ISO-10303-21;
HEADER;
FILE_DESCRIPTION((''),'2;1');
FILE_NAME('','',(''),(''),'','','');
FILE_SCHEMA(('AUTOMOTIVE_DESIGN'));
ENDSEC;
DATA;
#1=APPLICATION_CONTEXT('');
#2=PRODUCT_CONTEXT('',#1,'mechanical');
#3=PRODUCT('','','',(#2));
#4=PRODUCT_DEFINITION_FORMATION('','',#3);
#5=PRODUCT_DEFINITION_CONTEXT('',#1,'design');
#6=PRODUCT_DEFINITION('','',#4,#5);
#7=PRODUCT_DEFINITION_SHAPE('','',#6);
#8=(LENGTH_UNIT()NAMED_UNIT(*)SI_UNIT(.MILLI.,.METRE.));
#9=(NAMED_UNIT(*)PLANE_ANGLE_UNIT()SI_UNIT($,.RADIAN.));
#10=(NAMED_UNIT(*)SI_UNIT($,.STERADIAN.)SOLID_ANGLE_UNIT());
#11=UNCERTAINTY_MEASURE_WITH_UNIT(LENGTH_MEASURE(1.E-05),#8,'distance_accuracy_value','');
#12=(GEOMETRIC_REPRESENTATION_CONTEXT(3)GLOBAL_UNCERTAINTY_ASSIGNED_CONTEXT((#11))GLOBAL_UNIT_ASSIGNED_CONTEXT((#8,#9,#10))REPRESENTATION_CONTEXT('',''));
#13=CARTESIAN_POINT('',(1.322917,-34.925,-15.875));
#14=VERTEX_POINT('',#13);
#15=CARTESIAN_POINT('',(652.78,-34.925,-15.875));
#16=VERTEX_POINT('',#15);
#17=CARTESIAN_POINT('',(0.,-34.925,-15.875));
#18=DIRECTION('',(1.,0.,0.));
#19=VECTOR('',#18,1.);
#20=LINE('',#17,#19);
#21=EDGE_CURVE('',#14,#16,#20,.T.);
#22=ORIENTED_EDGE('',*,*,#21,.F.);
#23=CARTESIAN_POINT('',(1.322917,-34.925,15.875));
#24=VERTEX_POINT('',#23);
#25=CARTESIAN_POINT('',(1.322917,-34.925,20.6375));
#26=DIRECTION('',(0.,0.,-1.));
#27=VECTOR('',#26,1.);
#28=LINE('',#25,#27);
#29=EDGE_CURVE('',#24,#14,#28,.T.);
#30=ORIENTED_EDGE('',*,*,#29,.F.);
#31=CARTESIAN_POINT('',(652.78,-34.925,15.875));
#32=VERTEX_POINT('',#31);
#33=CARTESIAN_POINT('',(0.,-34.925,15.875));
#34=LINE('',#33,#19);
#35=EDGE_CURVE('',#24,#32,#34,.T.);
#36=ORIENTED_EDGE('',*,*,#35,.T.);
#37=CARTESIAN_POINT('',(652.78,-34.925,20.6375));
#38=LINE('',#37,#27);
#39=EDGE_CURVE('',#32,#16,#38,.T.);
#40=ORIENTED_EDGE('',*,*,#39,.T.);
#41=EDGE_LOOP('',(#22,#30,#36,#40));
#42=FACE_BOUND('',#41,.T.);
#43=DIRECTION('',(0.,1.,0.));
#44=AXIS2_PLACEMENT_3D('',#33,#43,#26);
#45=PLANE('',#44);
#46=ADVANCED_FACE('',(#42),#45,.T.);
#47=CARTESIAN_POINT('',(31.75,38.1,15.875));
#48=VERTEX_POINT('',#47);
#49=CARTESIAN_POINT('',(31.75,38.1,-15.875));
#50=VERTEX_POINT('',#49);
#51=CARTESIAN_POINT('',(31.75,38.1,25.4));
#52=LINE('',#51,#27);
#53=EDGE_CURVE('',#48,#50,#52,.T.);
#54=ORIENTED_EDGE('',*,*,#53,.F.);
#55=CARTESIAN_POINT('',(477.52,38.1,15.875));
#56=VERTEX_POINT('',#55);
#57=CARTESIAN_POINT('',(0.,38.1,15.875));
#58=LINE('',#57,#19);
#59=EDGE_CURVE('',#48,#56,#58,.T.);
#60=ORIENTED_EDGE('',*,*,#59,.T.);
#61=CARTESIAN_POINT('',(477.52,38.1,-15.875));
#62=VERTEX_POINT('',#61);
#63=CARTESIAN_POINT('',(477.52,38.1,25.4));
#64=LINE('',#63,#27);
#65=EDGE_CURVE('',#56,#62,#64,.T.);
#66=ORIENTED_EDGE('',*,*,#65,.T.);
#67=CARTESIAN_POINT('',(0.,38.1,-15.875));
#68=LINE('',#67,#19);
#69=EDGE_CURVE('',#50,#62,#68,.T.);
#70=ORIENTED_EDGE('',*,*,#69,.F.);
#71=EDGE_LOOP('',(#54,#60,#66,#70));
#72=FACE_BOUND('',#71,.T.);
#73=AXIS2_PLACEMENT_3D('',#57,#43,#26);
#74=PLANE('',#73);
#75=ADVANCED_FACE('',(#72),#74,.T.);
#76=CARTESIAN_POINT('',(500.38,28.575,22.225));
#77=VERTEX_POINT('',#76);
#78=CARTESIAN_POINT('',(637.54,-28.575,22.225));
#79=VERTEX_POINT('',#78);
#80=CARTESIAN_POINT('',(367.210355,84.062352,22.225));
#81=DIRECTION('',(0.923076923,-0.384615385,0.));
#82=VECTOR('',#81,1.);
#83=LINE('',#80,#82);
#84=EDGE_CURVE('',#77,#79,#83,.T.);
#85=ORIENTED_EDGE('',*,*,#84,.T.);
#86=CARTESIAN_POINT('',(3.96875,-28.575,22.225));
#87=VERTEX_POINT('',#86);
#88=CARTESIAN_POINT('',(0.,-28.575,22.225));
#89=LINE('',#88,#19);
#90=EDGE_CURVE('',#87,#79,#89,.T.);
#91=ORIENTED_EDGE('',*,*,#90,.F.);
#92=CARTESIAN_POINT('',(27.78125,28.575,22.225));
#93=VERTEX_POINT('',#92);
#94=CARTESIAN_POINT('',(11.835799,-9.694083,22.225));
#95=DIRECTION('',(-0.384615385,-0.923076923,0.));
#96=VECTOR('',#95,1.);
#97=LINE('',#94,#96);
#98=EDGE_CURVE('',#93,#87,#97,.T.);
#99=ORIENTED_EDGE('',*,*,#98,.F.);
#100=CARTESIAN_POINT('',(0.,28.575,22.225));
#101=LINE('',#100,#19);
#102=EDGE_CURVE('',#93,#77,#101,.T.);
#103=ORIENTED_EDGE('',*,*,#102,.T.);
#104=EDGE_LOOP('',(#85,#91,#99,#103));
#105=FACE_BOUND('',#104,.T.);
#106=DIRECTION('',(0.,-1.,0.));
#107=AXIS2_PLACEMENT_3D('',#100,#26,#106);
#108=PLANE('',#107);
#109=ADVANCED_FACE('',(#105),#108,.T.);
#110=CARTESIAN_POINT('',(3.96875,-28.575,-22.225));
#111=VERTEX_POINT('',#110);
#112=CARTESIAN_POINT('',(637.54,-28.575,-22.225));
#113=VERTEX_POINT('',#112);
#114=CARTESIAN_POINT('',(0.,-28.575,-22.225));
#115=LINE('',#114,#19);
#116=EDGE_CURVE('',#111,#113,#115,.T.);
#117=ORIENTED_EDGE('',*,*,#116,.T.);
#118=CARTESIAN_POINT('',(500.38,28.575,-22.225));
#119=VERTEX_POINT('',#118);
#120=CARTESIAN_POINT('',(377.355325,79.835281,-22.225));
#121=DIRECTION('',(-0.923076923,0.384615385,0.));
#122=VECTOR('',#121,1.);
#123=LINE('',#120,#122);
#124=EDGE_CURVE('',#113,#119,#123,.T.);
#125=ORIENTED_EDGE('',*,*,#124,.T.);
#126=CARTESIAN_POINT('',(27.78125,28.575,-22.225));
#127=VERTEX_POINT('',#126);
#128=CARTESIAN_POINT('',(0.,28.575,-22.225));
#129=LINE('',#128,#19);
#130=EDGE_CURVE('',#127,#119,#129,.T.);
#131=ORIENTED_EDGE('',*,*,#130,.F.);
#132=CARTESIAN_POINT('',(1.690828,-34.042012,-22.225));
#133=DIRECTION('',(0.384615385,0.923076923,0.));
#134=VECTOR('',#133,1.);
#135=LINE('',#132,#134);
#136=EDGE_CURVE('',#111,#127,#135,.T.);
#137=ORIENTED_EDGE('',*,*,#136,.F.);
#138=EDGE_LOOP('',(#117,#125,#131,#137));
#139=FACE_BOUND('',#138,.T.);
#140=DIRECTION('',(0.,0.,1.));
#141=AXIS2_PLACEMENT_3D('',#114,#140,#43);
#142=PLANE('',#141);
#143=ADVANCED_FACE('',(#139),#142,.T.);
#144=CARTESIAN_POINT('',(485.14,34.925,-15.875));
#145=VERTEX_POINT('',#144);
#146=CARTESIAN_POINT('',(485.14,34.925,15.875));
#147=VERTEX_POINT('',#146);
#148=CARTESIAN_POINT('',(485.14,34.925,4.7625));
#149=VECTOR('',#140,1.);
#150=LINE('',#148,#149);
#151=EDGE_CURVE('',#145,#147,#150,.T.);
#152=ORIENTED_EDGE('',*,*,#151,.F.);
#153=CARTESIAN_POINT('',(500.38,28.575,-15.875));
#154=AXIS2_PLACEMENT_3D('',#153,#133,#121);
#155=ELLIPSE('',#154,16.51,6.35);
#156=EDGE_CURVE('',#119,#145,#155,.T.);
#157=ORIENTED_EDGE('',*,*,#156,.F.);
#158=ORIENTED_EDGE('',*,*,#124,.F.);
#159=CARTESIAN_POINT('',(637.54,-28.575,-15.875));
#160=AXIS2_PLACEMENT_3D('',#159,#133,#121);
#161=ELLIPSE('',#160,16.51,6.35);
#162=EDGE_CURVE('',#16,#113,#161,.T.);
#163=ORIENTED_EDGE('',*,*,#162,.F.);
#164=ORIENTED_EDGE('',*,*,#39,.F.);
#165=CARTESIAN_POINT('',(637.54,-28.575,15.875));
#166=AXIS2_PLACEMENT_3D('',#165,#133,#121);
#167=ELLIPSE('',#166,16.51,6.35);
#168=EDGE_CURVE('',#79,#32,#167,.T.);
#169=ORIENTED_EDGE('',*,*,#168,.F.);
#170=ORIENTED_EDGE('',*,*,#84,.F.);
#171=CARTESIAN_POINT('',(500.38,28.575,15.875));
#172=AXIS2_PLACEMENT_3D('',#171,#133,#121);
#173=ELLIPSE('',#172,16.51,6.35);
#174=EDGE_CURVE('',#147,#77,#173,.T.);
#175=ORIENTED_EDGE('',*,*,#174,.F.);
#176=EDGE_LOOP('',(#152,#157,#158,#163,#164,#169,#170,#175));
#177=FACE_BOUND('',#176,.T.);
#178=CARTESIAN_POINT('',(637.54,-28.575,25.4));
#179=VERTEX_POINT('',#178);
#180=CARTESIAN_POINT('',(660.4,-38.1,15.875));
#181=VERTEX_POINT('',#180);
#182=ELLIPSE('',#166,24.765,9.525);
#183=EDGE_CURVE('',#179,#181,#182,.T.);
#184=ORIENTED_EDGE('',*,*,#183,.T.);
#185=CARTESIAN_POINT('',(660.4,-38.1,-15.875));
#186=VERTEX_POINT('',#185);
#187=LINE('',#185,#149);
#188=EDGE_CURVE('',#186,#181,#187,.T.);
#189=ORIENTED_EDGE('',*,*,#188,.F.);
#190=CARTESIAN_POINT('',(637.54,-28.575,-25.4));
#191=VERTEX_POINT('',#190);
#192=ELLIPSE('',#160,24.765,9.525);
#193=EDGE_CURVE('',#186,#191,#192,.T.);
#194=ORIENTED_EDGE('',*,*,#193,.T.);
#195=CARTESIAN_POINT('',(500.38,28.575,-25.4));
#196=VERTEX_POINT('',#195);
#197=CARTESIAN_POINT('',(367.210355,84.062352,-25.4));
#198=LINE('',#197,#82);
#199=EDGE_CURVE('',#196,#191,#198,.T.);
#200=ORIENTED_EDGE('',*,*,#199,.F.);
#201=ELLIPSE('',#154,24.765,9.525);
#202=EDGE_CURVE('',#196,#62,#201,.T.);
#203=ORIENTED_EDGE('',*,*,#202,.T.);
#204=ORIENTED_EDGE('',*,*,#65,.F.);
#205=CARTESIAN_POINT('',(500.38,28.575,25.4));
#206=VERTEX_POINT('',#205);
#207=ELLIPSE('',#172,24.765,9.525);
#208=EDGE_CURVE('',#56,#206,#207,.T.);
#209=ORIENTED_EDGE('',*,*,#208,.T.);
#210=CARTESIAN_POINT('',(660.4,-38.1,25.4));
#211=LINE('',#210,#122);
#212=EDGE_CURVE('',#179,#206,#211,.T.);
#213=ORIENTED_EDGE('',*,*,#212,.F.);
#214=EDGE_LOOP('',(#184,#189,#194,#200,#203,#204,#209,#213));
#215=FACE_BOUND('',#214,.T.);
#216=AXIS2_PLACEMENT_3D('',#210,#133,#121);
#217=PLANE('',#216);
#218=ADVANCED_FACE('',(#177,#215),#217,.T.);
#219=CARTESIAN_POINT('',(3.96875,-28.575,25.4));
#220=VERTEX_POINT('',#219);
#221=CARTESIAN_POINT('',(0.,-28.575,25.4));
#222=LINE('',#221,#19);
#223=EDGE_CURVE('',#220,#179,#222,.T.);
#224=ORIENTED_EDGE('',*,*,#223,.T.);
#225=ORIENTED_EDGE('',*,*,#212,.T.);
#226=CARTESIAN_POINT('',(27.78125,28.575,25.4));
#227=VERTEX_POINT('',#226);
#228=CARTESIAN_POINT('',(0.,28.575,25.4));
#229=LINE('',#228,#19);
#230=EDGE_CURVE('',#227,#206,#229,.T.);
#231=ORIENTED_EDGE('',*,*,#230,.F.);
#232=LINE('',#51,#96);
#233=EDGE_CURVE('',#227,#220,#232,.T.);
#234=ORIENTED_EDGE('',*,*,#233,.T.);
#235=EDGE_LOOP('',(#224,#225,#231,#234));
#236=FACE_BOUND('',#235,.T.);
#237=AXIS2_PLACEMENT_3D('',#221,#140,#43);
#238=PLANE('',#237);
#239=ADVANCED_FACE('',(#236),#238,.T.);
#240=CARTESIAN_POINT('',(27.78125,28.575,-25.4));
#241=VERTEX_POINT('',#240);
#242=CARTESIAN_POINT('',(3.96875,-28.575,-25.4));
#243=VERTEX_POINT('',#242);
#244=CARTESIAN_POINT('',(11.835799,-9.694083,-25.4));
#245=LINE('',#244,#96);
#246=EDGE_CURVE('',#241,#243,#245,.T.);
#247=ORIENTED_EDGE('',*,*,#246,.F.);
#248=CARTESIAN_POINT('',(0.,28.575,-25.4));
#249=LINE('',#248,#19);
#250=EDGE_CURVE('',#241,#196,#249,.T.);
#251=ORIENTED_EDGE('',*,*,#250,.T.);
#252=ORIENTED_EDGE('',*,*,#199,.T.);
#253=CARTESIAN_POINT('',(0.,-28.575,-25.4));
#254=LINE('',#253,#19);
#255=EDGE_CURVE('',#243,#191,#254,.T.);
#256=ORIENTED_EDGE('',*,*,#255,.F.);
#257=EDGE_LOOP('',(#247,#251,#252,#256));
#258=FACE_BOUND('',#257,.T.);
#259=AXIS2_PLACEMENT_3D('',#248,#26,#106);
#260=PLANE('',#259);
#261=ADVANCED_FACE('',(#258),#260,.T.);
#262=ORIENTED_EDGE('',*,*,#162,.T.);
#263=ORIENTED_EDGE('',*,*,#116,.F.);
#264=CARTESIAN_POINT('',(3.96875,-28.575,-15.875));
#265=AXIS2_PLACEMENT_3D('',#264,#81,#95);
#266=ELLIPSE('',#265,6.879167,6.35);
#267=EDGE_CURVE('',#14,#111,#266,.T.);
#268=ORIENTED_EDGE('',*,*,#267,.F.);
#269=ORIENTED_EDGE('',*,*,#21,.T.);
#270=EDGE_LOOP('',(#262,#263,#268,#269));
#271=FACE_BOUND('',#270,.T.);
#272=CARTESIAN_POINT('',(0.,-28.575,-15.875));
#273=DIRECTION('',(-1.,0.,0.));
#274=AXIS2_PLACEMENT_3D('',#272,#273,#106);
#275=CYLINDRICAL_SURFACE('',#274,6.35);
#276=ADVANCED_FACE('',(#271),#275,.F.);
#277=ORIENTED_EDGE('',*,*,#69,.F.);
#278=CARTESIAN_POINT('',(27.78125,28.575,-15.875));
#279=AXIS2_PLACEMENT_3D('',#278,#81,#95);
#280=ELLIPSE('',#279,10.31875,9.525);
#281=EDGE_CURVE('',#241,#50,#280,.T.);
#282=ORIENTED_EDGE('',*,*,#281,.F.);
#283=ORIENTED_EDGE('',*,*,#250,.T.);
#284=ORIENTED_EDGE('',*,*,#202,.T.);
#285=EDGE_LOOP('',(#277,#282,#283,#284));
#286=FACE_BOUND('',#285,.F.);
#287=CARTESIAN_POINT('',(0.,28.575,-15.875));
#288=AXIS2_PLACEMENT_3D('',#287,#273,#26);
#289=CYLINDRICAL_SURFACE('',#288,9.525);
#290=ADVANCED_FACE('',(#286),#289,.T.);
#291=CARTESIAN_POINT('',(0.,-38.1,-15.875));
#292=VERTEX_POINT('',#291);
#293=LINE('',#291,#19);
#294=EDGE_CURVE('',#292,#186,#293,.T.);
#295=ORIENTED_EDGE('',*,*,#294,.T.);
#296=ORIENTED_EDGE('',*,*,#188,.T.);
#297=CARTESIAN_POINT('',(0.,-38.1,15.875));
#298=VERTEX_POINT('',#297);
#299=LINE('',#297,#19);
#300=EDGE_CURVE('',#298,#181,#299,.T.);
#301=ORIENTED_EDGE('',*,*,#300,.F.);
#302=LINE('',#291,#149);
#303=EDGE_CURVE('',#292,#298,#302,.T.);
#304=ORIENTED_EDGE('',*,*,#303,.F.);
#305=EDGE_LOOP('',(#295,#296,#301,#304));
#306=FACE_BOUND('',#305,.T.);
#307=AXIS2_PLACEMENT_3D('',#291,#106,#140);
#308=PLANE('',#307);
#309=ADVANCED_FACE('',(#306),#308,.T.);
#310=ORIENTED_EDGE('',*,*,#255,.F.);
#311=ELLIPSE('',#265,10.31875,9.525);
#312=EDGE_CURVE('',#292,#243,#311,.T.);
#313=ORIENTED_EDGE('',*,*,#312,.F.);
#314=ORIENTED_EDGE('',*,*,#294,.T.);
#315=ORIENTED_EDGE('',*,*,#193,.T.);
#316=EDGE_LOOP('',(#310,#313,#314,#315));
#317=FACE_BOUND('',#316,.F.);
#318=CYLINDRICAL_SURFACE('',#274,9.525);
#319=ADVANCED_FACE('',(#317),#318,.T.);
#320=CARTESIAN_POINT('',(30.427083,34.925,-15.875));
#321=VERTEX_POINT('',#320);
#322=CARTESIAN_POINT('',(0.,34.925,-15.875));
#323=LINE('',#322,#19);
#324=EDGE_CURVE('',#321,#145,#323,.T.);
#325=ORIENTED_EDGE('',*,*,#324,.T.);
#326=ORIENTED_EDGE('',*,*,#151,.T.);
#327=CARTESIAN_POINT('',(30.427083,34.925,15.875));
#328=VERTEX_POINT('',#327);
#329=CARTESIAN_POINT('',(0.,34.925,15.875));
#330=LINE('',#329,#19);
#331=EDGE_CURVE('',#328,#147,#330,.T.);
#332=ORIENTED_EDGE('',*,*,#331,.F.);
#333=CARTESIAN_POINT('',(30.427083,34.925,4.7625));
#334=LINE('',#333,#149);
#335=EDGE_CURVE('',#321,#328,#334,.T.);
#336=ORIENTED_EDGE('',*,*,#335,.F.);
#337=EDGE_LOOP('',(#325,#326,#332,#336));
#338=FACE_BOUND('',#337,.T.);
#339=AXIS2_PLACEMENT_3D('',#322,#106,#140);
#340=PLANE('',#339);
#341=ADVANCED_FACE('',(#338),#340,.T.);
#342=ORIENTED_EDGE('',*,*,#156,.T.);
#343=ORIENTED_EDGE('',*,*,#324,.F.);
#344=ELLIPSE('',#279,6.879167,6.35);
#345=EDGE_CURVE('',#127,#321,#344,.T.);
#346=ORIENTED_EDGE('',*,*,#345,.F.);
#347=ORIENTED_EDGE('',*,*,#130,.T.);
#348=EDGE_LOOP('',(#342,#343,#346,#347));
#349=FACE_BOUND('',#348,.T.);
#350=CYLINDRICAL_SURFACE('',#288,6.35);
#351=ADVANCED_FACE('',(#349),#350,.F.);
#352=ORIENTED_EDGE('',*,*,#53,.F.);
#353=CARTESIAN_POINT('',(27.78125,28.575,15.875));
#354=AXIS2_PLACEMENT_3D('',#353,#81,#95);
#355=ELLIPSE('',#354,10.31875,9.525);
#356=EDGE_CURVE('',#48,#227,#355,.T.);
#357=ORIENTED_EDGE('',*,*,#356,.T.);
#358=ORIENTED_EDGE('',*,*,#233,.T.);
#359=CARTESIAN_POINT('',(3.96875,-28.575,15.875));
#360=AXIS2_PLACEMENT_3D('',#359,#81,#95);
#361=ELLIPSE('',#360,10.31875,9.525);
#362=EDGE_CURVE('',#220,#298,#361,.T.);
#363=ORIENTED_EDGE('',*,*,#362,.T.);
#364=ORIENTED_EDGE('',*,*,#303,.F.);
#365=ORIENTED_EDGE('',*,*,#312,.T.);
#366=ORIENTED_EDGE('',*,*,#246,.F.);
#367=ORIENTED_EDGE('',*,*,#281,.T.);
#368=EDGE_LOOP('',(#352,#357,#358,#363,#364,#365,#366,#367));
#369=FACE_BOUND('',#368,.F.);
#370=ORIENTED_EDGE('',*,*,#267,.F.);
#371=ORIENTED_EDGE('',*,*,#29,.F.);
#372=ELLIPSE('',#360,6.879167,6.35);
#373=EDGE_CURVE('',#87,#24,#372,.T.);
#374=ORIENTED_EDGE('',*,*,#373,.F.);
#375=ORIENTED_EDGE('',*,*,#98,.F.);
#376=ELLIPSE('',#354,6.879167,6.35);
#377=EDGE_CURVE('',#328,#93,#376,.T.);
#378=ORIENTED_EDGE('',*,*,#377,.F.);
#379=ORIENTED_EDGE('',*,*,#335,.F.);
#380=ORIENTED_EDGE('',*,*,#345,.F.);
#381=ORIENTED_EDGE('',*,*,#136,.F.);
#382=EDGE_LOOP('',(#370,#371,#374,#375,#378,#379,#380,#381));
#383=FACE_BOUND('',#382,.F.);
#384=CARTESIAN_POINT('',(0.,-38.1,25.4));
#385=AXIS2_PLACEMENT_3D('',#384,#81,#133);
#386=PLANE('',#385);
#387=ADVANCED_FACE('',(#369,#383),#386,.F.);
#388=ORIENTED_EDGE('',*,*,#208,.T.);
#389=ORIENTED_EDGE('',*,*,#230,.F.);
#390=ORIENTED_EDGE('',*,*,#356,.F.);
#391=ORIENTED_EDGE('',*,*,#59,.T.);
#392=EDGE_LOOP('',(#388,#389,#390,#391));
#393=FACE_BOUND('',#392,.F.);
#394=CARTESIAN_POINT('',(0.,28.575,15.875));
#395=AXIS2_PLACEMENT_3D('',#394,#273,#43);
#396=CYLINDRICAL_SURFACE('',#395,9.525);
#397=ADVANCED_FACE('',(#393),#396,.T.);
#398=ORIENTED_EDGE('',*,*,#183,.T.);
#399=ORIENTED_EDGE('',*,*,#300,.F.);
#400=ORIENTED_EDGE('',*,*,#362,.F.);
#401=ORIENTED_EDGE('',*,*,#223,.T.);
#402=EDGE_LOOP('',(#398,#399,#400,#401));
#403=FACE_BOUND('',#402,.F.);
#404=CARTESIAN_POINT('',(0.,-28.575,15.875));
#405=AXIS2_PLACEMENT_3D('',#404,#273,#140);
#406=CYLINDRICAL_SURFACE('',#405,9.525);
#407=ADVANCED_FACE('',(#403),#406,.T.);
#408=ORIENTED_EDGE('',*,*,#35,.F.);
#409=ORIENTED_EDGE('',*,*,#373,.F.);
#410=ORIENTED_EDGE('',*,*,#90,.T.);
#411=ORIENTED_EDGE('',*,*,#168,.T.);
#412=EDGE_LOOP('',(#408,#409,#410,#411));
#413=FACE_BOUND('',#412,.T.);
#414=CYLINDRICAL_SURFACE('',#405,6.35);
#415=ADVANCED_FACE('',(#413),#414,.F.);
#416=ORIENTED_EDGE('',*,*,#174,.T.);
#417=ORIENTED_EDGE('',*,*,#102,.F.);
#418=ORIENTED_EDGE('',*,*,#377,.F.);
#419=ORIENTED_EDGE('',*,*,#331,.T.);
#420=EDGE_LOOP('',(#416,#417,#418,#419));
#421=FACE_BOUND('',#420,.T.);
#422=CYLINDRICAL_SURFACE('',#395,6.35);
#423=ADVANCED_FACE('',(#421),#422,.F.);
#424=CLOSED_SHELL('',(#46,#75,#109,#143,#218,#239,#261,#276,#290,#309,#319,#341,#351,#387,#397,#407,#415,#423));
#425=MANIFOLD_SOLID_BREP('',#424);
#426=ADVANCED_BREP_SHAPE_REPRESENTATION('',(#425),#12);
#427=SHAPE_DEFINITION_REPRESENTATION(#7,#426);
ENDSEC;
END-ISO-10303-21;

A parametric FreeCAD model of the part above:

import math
import FreeCAD as App
import Part
import Sketcher

V = App.Vector
Q = App.Units.Quantity

doc = App.newDocument("Part")
body = doc.addObject("PartDesign::Body", "Body")

# Sketch on YZ plane
sketch1 = body.newObject("Sketcher::SketchObject", "Sketch")
sketch1.AttachmentSupport = (doc.getObject("YZ_Plane"), [""])
sketch1.MapMode = "FlatFace"
sketch1.addGeometry(Part.LineSegment(V(29, 25, 0), V(-29, 25, 0)), False)
sketch1.addGeometry(Part.ArcOfCircle(Part.Circle(V(-29, 16, 0), V(0, 0, 1), 10), math.radians(90), math.radians(180)), False)
sketch1.addGeometry(Part.LineSegment(V(-38, 16, 0), V(-38, -16, 0)), False)
sketch1.addGeometry(Part.ArcOfCircle(Part.Circle(V(-29, -16, 0), V(0, 0, 1), 10), math.radians(180), math.radians(270)), False)
sketch1.addGeometry(Part.LineSegment(V(-29, -25, 0), V(29, -25, 0)), False)
sketch1.addGeometry(Part.ArcOfCircle(Part.Circle(V(29, -16, 0), V(0, 0, 1), 10), math.radians(-90), math.radians(0)), False)
sketch1.addGeometry(Part.LineSegment(V(38, -16, 0), V(38, 16, 0)), False)
sketch1.addGeometry(Part.ArcOfCircle(Part.Circle(V(29, 16, 0), V(0, 0, 1), 10), math.radians(0), math.radians(90)), False)
sketch1.addGeometry(Part.LineSegment(V(35, 16, 0), V(35, -16, 0)), False)
sketch1.addGeometry(Part.ArcOfCircle(Part.Circle(V(29, -16, 0), V(0, 0, 1), 6), math.radians(-90), math.radians(0)), False)
sketch1.addGeometry(Part.LineSegment(V(29, -22, 0), V(-29, -22, 0)), False)
sketch1.addGeometry(Part.ArcOfCircle(Part.Circle(V(-29, -16, 0), V(0, 0, 1), 6), math.radians(180), math.radians(270)), False)
sketch1.addGeometry(Part.LineSegment(V(-35, -16, 0), V(-35, 16, 0)), False)
sketch1.addGeometry(Part.ArcOfCircle(Part.Circle(V(-29, 16, 0), V(0, 0, 1), 6), math.radians(90), math.radians(180)), False)
sketch1.addGeometry(Part.LineSegment(V(-29, 22, 0), V(29, 22, 0)), False)
sketch1.addGeometry(Part.ArcOfCircle(Part.Circle(V(29, 16, 0), V(0, 0, 1), 6), math.radians(0), math.radians(90)), False)
sketch1.addConstraint(Sketcher.Constraint("Tangent", 0, 2, 1, 1))
sketch1.addConstraint(Sketcher.Constraint("Tangent", 1, 2, 2, 1))
sketch1.addConstraint(Sketcher.Constraint("Tangent", 2, 2, 3, 1))
sketch1.addConstraint(Sketcher.Constraint("Tangent", 3, 2, 4, 1))
sketch1.addConstraint(Sketcher.Constraint("Tangent", 4, 2, 5, 1))
sketch1.addConstraint(Sketcher.Constraint("Tangent", 5, 2, 6, 1))
sketch1.addConstraint(Sketcher.Constraint("Tangent", 6, 2, 7, 1))
sketch1.addConstraint(Sketcher.Constraint("Tangent", 7, 2, 0, 1))
sketch1.addConstraint(Sketcher.Constraint("Tangent", 8, 2, 9, 2))
sketch1.addConstraint(Sketcher.Constraint("Tangent", 9, 1, 10, 1))
sketch1.addConstraint(Sketcher.Constraint("Tangent", 10, 2, 11, 2))
sketch1.addConstraint(Sketcher.Constraint("Tangent", 11, 1, 12, 1))
sketch1.addConstraint(Sketcher.Constraint("Tangent", 12, 2, 13, 2))
sketch1.addConstraint(Sketcher.Constraint("Tangent", 13, 1, 14, 1))
sketch1.addConstraint(Sketcher.Constraint("Tangent", 14, 2, 15, 2))
sketch1.addConstraint(Sketcher.Constraint("Tangent", 15, 1, 8, 1))
sketch1.addConstraint(Sketcher.Constraint("Horizontal", 0))
sketch1.addConstraint(Sketcher.Constraint("Vertical", 2))
sketch1.addConstraint(Sketcher.Constraint("Horizontal", 4))
sketch1.addConstraint(Sketcher.Constraint("Vertical", 6))
sketch1.addConstraint(Sketcher.Constraint("Vertical", 8))
sketch1.addConstraint(Sketcher.Constraint("Horizontal", 10))
sketch1.addConstraint(Sketcher.Constraint("Vertical", 12))
sketch1.addConstraint(Sketcher.Constraint("Horizontal", 14))
sketch1.addConstraint(Sketcher.Constraint("Coincident", 9, 3, 5, 3))
sketch1.addConstraint(Sketcher.Constraint("Coincident", 11, 3, 3, 3))
sketch1.addConstraint(Sketcher.Constraint("Coincident", 13, 3, 1, 3))
sketch1.addConstraint(Sketcher.Constraint("Equal", 1, 3))
sketch1.addConstraint(Sketcher.Constraint("Equal", 3, 5))
sketch1.addConstraint(Sketcher.Constraint("Equal", 5, 7))
sketch1.addConstraint(Sketcher.Constraint("Equal", 13, 15))
sketch1.addConstraint(Sketcher.Constraint("Symmetric", 1, 3, 5, 3, -1, 1))
sketch1.addConstraint(Sketcher.Constraint("Radius", 1, Q("0.375 in")))
sketch1.addConstraint(Sketcher.Constraint("Radius", 9, Q("0.25 in")))
sketch1.addConstraint(Sketcher.Constraint("DistanceY", -1, 1, 0, 2, Q("1 in")))
sketch1.addConstraint(Sketcher.Constraint("DistanceX", 0, 2, 0, 1, Q("2.25 in")))
pad1 = body.newObject("PartDesign::Pad", "Pad")
pad1.Profile = sketch1
pad1.Length = Q("26 in")

# Sketch on XY plane
sketch2 = body.newObject("Sketcher::SketchObject", "Sketch001")
sketch2.AttachmentSupport = (doc.getObject("XY_Plane"), [""])
sketch2.MapMode = "FlatFace"
sketch2.AttachmentOffset = App.Placement(V(0, 0, 1 * 25.4), App.Rotation())
sketch2.addGeometry(Part.LineSegment(V(0, -38, 0), V(32, 38, 0)), False)
sketch2.addGeometry(Part.LineSegment(V(32, 38, 0), V(0, 38, 0)), False)
sketch2.addGeometry(Part.LineSegment(V(0, 38, 0), V(0, -38, 0)), False)
sketch2.addGeometry(Part.LineSegment(V(660, -38, 0), V(660, 38, 0)), False)
sketch2.addGeometry(Part.LineSegment(V(660, 38, 0), V(478, 38, 0)), False)
sketch2.addGeometry(Part.LineSegment(V(478, 38, 0), V(660, -38, 0)), False)
sketch2.addConstraint(Sketcher.Constraint("Coincident", 0, 2, 1, 1))
sketch2.addConstraint(Sketcher.Constraint("Coincident", 1, 2, 2, 1))
sketch2.addConstraint(Sketcher.Constraint("Coincident", 2, 2, 0, 1))
sketch2.addConstraint(Sketcher.Constraint("Coincident", 3, 2, 4, 1))
sketch2.addConstraint(Sketcher.Constraint("Coincident", 4, 2, 5, 1))
sketch2.addConstraint(Sketcher.Constraint("Coincident", 5, 2, 3, 1))
sketch2.addConstraint(Sketcher.Constraint("Horizontal", 1))
sketch2.addConstraint(Sketcher.Constraint("Vertical", 2))
sketch2.addConstraint(Sketcher.Constraint("Vertical", 3))
sketch2.addConstraint(Sketcher.Constraint("Horizontal", 4))
sketch2.addConstraint(Sketcher.Constraint("Symmetric", 1, 2, 2, 2, -1, 1))
sketch2.addConstraint(Sketcher.Constraint("Perpendicular", 0, 5))
sketch2.addConstraint(Sketcher.Constraint("Horizontal", 1, 2, 3, 2))
sketch2.addConstraint(Sketcher.Constraint("Horizontal", 2, 2, 5, 2))
sketch2.addConstraint(Sketcher.Constraint("DistanceY", 2, 2, 2, 1, Q("3 in")))
sketch2.addConstraint(Sketcher.Constraint("Angle", 5, Q("-22.6199 deg")))
sketch2.addConstraint(Sketcher.Constraint("DistanceX", -1, 1, 3, 2, Q("26 in")))
pocket1 = body.newObject("PartDesign::Pocket", "Pocket")
pocket1.Profile = sketch2
pocket1.Type = "ThroughAll"

doc.recompute()
